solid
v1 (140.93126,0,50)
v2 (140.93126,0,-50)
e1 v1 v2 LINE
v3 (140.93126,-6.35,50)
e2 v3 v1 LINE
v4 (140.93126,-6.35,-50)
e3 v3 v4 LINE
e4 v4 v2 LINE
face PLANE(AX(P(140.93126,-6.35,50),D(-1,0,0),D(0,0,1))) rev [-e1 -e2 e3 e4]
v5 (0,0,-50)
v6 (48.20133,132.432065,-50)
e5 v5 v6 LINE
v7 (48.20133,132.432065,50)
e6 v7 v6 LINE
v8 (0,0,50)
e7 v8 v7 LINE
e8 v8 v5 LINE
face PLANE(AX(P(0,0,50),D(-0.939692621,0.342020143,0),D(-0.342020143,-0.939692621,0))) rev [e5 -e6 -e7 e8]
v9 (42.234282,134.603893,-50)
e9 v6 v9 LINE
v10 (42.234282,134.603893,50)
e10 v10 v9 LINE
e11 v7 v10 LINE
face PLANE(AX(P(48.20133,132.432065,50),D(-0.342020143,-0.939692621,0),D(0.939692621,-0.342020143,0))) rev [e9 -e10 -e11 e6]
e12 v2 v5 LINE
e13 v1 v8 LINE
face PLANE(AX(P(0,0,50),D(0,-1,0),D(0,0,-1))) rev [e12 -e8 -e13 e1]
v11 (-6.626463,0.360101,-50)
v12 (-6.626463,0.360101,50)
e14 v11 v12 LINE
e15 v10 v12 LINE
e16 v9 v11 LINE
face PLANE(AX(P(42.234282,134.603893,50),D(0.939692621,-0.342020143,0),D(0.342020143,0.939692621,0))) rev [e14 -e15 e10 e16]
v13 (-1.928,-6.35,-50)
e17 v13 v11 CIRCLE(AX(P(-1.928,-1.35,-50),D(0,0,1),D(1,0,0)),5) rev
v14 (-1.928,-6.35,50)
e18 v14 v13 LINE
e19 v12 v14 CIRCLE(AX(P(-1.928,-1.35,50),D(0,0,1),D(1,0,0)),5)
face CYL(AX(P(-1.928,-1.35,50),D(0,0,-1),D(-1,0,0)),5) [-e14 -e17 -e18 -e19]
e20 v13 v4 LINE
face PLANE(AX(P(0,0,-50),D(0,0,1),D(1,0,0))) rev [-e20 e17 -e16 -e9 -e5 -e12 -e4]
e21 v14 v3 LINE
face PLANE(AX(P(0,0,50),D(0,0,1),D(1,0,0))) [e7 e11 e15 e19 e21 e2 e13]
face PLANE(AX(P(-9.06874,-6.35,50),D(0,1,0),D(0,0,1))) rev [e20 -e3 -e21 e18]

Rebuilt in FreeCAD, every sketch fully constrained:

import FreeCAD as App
import Part
import Sketcher
Q = App.Units.Quantity


def edges_at(feature, points):
    """Names of the edges that pass closest to the given points."""
    edges = feature.Shape.Edges
    near = lambda p: min(range(len(edges)), key=lambda i: edges[i].distToShape(Part.Vertex(*p))[0])
    return sorted({f"Edge{near(p) + 1}" for p in points})


def add_polygon(sketch, points):
    """Adds a closed chain of lines whose ends are joined by coincident constraints."""
    first, n = sketch.GeometryCount, len(points)
    for a, b in zip(points, points[1:] + points[:1]):
        sketch.addGeometry(Part.LineSegment(App.Vector(*a, 0), App.Vector(*b, 0)), False)
    for i in range(n):
        sketch.addConstraint(Sketcher.Constraint("Coincident", first + i, 2, first + (i + 1) % n, 1))

doc = App.newDocument("Part")
body = doc.addObject("PartDesign::Body", "Body")

# Sketch on XY plane
sketch1 = body.newObject("Sketcher::SketchObject", "Sketch")
sketch1.AttachmentSupport = (doc.getObject("XY_Plane"), [""])
sketch1.MapMode = "FlatFace"
add_polygon(sketch1, [(140.93126, 0), (0, 0), (48.20133, 132.432065), (42.234282, 134.603893), (-9.06874, -6.35), (140.93126, -6.35)])  # lines 0-5
sketch1.addConstraint([
    Sketcher.Constraint("Horizontal", 0),
    Sketcher.Constraint("Horizontal", 4),
    Sketcher.Constraint("Vertical", 5),
    Sketcher.Constraint("Coincident", 0, 2, -1, 1),
    Sketcher.Constraint("Perpendicular", 1, 2),
    Sketcher.Constraint("Perpendicular", 2, 3),
    Sketcher.Constraint("DistanceX", 4, 1, 4, 2, Q("150 mm")),
    Sketcher.Constraint("Angle", 1, Q("70 deg")),
    Sketcher.Constraint("Distance", 3, Q("150 mm")),
    Sketcher.Constraint("DistanceY", 5, 1, 5, 2, Q("6.35 mm")),
    Sketcher.Constraint("Distance", 2, Q("6.35 mm")),
])
pad1 = body.newObject("PartDesign::Pad", "Pad")
pad1.Profile = sketch1
pad1.Length = 100
pad1.Midplane = True
doc.recompute()

fillet = body.newObject("PartDesign::Fillet", "Fillet")
fillet.Base = (pad1, edges_at(pad1, [(-9.069, -6.35, 0)]))
fillet.Radius = 5

doc.recompute()
